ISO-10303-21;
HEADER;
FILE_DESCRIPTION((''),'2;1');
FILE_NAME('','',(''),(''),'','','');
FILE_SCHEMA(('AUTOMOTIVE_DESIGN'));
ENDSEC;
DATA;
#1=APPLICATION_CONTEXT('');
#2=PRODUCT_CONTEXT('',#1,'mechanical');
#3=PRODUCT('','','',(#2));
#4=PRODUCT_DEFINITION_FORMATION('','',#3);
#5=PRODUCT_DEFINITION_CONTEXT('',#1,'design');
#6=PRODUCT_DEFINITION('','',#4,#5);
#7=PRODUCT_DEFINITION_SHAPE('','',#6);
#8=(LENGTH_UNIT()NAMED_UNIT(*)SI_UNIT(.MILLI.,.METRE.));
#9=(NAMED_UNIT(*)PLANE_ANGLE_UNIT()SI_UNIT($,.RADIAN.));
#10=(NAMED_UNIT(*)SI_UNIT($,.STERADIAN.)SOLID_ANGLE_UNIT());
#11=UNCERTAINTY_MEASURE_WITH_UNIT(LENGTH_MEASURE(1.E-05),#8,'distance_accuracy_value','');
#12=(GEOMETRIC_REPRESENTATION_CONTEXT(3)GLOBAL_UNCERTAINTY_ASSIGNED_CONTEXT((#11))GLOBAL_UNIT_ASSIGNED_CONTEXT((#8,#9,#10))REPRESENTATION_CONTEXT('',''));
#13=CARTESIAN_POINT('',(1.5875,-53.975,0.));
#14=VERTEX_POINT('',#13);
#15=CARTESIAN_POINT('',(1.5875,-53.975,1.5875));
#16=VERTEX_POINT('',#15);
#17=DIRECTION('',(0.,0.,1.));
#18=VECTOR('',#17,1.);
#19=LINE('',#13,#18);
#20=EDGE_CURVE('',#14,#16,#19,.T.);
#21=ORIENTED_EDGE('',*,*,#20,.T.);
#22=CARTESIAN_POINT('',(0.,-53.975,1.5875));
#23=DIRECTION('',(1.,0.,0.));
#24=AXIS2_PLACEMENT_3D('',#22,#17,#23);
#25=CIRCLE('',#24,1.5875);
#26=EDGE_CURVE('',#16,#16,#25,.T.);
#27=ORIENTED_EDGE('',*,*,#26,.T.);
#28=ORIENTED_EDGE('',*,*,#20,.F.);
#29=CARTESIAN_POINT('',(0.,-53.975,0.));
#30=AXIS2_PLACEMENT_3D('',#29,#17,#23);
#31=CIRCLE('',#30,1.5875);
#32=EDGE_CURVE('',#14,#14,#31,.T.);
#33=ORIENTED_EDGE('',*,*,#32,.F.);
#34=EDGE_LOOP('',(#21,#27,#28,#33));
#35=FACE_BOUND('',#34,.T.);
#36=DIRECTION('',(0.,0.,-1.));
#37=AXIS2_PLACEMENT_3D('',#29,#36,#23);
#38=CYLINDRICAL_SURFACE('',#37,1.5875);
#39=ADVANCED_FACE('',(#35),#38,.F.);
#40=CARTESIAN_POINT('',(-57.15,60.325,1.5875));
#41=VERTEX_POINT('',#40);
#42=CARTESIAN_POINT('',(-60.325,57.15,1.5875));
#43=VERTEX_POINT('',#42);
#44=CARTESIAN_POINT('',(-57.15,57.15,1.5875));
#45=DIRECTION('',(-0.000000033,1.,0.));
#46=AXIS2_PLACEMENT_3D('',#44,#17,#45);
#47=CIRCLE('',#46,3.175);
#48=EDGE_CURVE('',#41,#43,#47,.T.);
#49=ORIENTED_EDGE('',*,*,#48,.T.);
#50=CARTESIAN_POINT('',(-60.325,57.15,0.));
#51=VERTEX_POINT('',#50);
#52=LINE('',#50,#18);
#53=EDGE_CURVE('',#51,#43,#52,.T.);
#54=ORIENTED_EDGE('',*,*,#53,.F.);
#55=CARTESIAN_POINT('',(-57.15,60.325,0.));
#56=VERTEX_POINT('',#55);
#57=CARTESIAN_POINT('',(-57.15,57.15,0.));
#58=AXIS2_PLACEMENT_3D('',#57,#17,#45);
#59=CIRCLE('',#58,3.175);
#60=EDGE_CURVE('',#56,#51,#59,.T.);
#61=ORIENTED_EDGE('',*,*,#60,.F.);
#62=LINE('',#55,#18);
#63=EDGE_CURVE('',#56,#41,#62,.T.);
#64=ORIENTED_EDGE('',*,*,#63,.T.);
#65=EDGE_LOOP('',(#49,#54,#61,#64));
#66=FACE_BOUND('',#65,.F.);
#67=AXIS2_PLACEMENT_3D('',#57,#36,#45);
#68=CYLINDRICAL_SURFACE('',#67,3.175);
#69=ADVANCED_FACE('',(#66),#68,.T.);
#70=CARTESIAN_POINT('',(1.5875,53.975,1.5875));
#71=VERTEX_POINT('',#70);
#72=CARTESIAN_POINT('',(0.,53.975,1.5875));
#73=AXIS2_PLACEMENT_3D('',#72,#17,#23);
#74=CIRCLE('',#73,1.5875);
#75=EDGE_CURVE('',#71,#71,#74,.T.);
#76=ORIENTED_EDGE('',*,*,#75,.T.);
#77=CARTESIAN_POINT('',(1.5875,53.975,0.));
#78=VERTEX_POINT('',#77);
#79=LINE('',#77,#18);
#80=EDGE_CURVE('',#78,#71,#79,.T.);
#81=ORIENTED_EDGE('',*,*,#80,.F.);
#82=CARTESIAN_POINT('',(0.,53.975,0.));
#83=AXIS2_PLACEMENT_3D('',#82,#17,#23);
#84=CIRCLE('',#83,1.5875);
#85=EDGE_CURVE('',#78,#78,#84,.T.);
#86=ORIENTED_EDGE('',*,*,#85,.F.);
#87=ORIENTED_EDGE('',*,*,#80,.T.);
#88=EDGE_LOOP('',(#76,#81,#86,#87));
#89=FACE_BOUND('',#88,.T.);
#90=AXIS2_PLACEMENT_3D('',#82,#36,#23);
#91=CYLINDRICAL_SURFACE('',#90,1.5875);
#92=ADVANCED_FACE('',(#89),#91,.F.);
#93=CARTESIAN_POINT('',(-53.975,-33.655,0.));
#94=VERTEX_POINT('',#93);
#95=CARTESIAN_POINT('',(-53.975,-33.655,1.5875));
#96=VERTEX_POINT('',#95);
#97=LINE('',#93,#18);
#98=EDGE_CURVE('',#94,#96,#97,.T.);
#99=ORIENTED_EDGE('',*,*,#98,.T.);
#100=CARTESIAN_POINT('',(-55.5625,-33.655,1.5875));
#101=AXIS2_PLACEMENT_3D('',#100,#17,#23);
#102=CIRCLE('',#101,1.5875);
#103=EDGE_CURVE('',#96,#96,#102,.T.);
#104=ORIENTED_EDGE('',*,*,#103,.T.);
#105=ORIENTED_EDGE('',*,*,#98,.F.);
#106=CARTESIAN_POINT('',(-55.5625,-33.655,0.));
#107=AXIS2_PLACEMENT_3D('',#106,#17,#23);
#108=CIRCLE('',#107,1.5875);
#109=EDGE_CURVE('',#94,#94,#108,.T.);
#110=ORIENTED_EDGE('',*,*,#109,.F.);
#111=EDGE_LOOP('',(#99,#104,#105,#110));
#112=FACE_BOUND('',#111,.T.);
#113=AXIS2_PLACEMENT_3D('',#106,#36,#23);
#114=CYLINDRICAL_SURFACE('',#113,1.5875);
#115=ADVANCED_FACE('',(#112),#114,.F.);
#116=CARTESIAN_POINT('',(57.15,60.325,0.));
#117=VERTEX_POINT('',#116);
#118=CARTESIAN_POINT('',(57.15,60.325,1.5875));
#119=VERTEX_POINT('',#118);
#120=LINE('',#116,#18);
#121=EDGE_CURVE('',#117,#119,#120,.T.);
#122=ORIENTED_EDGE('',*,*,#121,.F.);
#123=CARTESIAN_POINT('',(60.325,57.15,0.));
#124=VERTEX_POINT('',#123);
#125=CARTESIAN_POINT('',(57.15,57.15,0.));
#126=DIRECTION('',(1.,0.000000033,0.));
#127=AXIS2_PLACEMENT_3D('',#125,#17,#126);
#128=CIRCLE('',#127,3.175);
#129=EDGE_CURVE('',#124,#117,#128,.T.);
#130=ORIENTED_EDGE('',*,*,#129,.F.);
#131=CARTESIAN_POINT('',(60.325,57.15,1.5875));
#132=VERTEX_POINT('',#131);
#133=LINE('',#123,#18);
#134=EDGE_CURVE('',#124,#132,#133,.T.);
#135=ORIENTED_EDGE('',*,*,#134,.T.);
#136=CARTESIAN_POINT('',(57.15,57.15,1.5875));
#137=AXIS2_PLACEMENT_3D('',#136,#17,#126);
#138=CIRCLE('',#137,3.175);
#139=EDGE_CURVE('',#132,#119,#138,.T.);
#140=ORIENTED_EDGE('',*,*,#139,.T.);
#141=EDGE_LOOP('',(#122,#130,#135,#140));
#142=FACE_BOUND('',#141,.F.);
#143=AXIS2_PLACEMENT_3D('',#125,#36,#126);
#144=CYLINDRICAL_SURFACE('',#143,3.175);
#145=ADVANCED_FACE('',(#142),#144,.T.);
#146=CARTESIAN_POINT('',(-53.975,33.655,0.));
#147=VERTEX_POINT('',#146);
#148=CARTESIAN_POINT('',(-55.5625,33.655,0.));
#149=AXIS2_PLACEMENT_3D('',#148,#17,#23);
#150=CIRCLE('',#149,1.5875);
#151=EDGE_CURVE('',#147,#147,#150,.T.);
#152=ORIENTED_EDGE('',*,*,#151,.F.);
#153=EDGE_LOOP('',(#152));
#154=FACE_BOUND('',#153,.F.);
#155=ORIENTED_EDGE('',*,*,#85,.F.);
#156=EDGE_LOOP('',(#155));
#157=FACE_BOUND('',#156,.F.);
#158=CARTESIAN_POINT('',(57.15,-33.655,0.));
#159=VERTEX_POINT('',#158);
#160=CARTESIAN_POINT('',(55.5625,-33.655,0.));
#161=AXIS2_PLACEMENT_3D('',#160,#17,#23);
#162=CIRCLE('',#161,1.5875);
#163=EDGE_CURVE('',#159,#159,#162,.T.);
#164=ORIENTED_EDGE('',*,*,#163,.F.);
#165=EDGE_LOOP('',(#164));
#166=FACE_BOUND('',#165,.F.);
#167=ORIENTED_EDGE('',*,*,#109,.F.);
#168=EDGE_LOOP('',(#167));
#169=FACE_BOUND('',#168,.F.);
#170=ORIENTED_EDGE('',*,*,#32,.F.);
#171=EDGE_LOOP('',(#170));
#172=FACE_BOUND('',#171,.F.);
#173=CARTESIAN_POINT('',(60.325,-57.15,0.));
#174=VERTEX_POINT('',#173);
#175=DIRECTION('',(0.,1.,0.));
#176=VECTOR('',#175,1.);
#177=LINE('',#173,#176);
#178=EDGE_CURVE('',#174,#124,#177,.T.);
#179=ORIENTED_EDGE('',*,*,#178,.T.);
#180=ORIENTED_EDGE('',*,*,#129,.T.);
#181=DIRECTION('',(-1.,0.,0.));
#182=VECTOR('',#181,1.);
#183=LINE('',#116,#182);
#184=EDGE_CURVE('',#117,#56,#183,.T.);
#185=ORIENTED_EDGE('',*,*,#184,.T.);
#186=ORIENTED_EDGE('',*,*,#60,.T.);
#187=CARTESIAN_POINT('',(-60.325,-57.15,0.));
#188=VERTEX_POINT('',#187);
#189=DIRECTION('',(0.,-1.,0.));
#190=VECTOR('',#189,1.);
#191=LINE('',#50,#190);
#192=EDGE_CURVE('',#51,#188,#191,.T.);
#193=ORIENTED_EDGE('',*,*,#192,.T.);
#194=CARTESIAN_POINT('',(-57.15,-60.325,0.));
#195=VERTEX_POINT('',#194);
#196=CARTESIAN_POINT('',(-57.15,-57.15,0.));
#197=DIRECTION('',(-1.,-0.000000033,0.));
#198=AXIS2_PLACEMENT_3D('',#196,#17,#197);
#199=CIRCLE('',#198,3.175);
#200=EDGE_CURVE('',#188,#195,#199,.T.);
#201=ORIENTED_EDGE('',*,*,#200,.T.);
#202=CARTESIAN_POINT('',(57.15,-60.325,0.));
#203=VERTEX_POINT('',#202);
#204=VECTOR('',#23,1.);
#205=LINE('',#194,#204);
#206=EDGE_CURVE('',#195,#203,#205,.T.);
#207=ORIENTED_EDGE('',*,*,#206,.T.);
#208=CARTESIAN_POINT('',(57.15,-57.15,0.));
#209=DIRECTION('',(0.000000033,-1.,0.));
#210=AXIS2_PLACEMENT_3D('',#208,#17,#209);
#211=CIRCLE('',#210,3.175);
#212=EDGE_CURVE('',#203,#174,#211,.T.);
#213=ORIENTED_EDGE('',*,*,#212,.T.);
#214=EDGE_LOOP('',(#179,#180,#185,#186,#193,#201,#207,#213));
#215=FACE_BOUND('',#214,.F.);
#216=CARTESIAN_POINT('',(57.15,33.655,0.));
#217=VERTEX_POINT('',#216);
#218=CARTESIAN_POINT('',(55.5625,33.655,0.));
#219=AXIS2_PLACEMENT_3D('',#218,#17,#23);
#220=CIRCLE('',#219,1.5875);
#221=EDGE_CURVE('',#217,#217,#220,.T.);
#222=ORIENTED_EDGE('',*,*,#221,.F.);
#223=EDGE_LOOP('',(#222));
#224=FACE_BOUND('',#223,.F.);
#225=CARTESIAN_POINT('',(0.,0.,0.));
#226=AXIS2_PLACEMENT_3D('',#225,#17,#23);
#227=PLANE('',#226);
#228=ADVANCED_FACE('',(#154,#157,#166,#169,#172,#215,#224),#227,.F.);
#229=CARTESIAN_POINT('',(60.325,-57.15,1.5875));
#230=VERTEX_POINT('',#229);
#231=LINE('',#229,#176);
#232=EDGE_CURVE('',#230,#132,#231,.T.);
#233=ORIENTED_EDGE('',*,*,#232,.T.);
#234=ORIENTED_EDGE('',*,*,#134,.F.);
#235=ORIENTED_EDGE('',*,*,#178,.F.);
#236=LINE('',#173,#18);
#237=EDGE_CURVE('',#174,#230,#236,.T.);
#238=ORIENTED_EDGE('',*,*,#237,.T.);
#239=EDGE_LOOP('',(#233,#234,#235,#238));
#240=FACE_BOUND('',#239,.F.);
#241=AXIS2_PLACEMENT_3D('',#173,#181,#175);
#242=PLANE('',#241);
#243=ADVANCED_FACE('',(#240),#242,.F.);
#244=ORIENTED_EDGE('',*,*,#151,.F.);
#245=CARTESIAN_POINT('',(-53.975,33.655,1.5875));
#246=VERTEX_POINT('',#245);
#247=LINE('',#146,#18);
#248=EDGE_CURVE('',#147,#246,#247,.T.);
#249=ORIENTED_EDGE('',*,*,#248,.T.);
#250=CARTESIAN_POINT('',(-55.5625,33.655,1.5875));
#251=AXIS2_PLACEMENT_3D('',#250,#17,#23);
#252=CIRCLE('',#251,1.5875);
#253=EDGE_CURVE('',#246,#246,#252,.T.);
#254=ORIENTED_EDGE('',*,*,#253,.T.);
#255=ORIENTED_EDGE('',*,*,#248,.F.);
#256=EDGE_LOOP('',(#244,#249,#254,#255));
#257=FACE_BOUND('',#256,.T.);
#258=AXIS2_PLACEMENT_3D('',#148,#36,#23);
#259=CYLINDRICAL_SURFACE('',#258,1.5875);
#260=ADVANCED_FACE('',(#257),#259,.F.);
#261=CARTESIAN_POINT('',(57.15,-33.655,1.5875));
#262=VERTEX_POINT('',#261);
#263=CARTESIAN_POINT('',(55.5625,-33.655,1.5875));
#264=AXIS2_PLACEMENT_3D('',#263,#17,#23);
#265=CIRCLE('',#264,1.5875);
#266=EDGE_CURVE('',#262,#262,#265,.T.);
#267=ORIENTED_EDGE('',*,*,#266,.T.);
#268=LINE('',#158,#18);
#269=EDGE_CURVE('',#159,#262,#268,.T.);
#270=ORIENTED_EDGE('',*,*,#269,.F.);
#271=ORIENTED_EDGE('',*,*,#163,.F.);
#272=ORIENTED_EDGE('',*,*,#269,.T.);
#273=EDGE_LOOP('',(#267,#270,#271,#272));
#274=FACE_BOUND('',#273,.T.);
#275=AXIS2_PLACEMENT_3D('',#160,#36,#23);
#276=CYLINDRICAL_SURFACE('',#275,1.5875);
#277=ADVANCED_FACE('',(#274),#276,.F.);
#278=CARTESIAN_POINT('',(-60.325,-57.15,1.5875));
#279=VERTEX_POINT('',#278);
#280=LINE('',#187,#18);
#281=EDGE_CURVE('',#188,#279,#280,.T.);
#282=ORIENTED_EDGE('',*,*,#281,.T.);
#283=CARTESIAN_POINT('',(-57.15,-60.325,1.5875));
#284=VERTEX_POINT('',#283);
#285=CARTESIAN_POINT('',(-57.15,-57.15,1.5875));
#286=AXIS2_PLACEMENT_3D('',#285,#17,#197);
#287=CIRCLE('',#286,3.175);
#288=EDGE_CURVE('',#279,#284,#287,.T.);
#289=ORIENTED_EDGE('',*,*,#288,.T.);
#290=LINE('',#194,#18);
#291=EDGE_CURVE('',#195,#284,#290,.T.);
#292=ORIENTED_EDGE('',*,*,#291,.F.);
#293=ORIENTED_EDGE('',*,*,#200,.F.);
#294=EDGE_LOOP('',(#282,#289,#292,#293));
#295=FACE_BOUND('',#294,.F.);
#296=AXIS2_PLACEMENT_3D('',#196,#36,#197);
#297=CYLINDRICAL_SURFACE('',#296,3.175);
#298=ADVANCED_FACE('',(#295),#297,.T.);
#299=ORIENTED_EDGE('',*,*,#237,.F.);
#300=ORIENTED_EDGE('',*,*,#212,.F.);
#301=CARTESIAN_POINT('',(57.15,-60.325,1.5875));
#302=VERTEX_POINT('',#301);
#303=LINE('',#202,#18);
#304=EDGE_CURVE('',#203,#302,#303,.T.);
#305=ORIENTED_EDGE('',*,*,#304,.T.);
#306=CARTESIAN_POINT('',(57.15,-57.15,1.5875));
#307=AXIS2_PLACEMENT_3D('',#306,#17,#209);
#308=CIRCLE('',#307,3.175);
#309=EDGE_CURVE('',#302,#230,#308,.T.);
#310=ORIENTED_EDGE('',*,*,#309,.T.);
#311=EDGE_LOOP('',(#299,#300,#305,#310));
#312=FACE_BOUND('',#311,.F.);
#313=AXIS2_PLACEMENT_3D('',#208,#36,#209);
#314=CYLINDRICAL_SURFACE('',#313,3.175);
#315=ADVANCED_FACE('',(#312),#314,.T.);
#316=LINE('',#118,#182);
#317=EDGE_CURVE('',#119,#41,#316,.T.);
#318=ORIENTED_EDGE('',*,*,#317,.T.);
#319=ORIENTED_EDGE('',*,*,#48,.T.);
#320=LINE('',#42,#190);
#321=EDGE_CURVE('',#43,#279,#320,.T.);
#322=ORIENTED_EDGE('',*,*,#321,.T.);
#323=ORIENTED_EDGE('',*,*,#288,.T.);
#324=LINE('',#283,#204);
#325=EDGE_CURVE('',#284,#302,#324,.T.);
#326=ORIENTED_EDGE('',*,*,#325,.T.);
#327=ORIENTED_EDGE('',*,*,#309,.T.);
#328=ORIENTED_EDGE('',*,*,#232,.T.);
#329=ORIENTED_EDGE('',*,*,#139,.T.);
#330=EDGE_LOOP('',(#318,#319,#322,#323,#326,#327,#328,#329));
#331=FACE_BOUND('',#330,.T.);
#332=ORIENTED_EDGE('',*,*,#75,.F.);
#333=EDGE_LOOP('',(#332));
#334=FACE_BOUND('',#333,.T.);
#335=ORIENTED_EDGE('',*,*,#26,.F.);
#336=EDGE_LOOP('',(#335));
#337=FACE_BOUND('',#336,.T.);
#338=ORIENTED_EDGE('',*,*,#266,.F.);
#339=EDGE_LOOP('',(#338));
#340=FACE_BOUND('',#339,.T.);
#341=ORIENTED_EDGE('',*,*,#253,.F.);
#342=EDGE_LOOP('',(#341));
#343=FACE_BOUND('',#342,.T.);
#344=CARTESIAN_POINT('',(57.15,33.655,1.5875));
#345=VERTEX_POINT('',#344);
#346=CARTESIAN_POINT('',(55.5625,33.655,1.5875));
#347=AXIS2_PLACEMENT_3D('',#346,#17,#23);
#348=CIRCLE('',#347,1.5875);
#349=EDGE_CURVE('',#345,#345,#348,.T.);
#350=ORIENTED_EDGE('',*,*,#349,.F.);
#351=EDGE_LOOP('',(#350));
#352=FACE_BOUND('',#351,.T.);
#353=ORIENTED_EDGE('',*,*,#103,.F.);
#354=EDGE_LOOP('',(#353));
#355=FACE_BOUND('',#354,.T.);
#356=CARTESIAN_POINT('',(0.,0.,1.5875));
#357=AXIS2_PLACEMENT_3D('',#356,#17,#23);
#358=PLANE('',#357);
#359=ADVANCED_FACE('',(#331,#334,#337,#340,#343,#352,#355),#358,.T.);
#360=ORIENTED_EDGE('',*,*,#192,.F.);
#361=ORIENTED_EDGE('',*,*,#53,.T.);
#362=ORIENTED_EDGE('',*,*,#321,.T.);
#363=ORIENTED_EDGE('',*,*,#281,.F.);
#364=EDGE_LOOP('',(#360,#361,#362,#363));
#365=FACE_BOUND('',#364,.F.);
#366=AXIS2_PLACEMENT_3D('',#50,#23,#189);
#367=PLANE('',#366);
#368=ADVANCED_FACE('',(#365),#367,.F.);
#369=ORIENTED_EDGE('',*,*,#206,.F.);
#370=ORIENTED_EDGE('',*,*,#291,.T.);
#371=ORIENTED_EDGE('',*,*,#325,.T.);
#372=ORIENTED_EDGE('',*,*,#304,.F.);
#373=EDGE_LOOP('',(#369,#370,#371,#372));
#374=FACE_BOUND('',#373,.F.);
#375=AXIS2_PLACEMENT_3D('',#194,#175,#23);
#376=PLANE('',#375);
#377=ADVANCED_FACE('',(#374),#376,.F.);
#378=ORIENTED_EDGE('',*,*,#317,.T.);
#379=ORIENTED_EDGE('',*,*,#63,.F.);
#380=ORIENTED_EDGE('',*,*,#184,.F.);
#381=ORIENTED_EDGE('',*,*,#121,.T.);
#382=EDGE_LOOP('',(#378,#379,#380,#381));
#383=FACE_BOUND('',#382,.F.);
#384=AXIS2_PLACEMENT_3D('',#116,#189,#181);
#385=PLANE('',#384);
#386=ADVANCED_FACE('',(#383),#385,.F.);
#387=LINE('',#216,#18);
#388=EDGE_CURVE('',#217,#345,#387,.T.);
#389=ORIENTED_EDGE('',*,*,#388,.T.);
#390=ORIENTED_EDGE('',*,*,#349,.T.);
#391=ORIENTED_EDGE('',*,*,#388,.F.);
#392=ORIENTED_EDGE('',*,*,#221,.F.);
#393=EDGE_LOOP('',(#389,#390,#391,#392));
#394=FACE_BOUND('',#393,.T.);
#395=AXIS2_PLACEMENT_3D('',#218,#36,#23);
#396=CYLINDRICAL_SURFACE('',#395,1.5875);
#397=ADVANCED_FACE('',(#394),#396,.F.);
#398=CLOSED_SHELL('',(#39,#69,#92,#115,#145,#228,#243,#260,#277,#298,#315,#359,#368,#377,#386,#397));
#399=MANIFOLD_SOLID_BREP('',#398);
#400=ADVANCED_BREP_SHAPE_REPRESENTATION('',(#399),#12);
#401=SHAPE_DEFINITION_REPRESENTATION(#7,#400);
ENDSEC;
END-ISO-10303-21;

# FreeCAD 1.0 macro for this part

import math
import FreeCAD as App
import Part
import Sketcher
from FreeCAD import Vector
Q = App.Units.Quantity

doc = App.newDocument("Part")
body = doc.addObject("PartDesign::Body", "Body")

# Sketch on XY plane
sketch1 = body.newObject("Sketcher::SketchObject", "Sketch")
sketch1.AttachmentSupport = (doc.getObject("XY_Plane"), [""])
sketch1.MapMode = "FlatFace"
sketch1.addGeometry(Part.LineSegment(Vector(57.1, 60.3, 0), Vector(-57.1, 60.3, 0)), False)
sketch1.addGeometry(Part.ArcOfCircle(Part.Circle(Vector(-57.1, 57.1, 0), Vector(0, 0, 1), 3.2), math.radians(90), math.radians(180)), False)
sketch1.addGeometry(Part.LineSegment(Vector(-60.3, 57.1, 0), Vector(-60.3, -57.1, 0)), False)
sketch1.addGeometry(Part.ArcOfCircle(Part.Circle(Vector(-57.1, -57.1, 0), Vector(0, 0, 1), 3.2), math.radians(-180), math.radians(-90)), False)
sketch1.addGeometry(Part.LineSegment(Vector(-57.1, -60.3, 0), Vector(57.1, -60.3, 0)), False)
sketch1.addGeometry(Part.ArcOfCircle(Part.Circle(Vector(57.1, -57.1, 0), Vector(0, 0, 1), 3.2), math.radians(-90), math.radians(0)), False)
sketch1.addGeometry(Part.LineSegment(Vector(60.3, -57.1, 0), Vector(60.3, 57.1, 0)), False)
sketch1.addGeometry(Part.ArcOfCircle(Part.Circle(Vector(57.1, 57.1, 0), Vector(0, 0, 1), 3.2), math.radians(0), math.radians(90)), False)
sketch1.addGeometry(Part.Circle(Vector(-55.6, -33.7, 0), Vector(0, 0, 1), 1.6), False)
sketch1.addGeometry(Part.Circle(Vector(0, -54, 0), Vector(0, 0, 1), 1.6), False)
sketch1.addGeometry(Part.Circle(Vector(55.6, -33.7, 0), Vector(0, 0, 1), 1.6), False)
sketch1.addGeometry(Part.Circle(Vector(-55.6, 33.7, 0), Vector(0, 0, 1), 1.6), False)
sketch1.addGeometry(Part.Circle(Vector(0, 54, 0), Vector(0, 0, 1), 1.6), False)
sketch1.addGeometry(Part.Circle(Vector(55.6, 33.7, 0), Vector(0, 0, 1), 1.6), False)
sketch1.addConstraint(Sketcher.Constraint("Tangent", 0, 2, 1, 1))
sketch1.addConstraint(Sketcher.Constraint("Tangent", 1, 2, 2, 1))
sketch1.addConstraint(Sketcher.Constraint("Tangent", 2, 2, 3, 1))
sketch1.addConstraint(Sketcher.Constraint("Tangent", 3, 2, 4, 1))
sketch1.addConstraint(Sketcher.Constraint("Tangent", 4, 2, 5, 1))
sketch1.addConstraint(Sketcher.Constraint("Tangent", 5, 2, 6, 1))
sketch1.addConstraint(Sketcher.Constraint("Tangent", 6, 2, 7, 1))
sketch1.addConstraint(Sketcher.Constraint("Tangent", 7, 2, 0, 1))
sketch1.addConstraint(Sketcher.Constraint("Horizontal", 0))
sketch1.addConstraint(Sketcher.Constraint("Vertical", 2))
sketch1.addConstraint(Sketcher.Constraint("Horizontal", 4))
sketch1.addConstraint(Sketcher.Constraint("Vertical", 6))
sketch1.addConstraint(Sketcher.Constraint("Equal", 1, 3))
sketch1.addConstraint(Sketcher.Constraint("Equal", 3, 5))
sketch1.addConstraint(Sketcher.Constraint("Equal", 5, 7))
sketch1.addConstraint(Sketcher.Constraint("Equal", 8, 9))
sketch1.addConstraint(Sketcher.Constraint("Equal", 9, 10))
sketch1.addConstraint(Sketcher.Constraint("Equal", 10, 11))
sketch1.addConstraint(Sketcher.Constraint("Equal", 11, 12))
sketch1.addConstraint(Sketcher.Constraint("Equal", 12, 13))
sketch1.addConstraint(Sketcher.Constraint("Symmetric", 1, 3, 5, 3, -1, 1))
sketch1.addConstraint(Sketcher.Constraint("Symmetric", 10, 3, 11, 3, -1, 1))
sketch1.addConstraint(Sketcher.Constraint("Symmetric", 9, 3, 12, 3, -1, 1))
sketch1.addConstraint(Sketcher.Constraint("Symmetric", 8, 3, 13, 3, -1, 1))
sketch1.addConstraint(Sketcher.Constraint("Symmetric", 8, 3, 10, 3, -2))
sketch1.addConstraint(Sketcher.Constraint("PointOnObject", 9, 3, -2))
sketch1.addConstraint(Sketcher.Constraint("Equal", 4, 2))
sketch1.addConstraint(Sketcher.Constraint("Diameter", 8, Q("0.125 in")))
sketch1.addConstraint(Sketcher.Constraint("DistanceX", 0, 2, 0, 1, Q("4.5 in")))
sketch1.addConstraint(Sketcher.Constraint("Radius", 1, Q("0.125 in")))
sketch1.addConstraint(Sketcher.Constraint("DistanceY", 9, 3, 8, 3, Q("0.8 in")))
sketch1.addConstraint(Sketcher.Constraint("DistanceY", 8, 3, 0, 2, Q("3.7 in")))
sketch1.addConstraint(Sketcher.Constraint("DistanceX", 8, 3, -1, 1, Q("2.1875 in")))
pad1 = body.newObject("PartDesign::Pad", "Pad")
pad1.Profile = sketch1
pad1.Length = Q("0.0625 in")

doc.recompute()
